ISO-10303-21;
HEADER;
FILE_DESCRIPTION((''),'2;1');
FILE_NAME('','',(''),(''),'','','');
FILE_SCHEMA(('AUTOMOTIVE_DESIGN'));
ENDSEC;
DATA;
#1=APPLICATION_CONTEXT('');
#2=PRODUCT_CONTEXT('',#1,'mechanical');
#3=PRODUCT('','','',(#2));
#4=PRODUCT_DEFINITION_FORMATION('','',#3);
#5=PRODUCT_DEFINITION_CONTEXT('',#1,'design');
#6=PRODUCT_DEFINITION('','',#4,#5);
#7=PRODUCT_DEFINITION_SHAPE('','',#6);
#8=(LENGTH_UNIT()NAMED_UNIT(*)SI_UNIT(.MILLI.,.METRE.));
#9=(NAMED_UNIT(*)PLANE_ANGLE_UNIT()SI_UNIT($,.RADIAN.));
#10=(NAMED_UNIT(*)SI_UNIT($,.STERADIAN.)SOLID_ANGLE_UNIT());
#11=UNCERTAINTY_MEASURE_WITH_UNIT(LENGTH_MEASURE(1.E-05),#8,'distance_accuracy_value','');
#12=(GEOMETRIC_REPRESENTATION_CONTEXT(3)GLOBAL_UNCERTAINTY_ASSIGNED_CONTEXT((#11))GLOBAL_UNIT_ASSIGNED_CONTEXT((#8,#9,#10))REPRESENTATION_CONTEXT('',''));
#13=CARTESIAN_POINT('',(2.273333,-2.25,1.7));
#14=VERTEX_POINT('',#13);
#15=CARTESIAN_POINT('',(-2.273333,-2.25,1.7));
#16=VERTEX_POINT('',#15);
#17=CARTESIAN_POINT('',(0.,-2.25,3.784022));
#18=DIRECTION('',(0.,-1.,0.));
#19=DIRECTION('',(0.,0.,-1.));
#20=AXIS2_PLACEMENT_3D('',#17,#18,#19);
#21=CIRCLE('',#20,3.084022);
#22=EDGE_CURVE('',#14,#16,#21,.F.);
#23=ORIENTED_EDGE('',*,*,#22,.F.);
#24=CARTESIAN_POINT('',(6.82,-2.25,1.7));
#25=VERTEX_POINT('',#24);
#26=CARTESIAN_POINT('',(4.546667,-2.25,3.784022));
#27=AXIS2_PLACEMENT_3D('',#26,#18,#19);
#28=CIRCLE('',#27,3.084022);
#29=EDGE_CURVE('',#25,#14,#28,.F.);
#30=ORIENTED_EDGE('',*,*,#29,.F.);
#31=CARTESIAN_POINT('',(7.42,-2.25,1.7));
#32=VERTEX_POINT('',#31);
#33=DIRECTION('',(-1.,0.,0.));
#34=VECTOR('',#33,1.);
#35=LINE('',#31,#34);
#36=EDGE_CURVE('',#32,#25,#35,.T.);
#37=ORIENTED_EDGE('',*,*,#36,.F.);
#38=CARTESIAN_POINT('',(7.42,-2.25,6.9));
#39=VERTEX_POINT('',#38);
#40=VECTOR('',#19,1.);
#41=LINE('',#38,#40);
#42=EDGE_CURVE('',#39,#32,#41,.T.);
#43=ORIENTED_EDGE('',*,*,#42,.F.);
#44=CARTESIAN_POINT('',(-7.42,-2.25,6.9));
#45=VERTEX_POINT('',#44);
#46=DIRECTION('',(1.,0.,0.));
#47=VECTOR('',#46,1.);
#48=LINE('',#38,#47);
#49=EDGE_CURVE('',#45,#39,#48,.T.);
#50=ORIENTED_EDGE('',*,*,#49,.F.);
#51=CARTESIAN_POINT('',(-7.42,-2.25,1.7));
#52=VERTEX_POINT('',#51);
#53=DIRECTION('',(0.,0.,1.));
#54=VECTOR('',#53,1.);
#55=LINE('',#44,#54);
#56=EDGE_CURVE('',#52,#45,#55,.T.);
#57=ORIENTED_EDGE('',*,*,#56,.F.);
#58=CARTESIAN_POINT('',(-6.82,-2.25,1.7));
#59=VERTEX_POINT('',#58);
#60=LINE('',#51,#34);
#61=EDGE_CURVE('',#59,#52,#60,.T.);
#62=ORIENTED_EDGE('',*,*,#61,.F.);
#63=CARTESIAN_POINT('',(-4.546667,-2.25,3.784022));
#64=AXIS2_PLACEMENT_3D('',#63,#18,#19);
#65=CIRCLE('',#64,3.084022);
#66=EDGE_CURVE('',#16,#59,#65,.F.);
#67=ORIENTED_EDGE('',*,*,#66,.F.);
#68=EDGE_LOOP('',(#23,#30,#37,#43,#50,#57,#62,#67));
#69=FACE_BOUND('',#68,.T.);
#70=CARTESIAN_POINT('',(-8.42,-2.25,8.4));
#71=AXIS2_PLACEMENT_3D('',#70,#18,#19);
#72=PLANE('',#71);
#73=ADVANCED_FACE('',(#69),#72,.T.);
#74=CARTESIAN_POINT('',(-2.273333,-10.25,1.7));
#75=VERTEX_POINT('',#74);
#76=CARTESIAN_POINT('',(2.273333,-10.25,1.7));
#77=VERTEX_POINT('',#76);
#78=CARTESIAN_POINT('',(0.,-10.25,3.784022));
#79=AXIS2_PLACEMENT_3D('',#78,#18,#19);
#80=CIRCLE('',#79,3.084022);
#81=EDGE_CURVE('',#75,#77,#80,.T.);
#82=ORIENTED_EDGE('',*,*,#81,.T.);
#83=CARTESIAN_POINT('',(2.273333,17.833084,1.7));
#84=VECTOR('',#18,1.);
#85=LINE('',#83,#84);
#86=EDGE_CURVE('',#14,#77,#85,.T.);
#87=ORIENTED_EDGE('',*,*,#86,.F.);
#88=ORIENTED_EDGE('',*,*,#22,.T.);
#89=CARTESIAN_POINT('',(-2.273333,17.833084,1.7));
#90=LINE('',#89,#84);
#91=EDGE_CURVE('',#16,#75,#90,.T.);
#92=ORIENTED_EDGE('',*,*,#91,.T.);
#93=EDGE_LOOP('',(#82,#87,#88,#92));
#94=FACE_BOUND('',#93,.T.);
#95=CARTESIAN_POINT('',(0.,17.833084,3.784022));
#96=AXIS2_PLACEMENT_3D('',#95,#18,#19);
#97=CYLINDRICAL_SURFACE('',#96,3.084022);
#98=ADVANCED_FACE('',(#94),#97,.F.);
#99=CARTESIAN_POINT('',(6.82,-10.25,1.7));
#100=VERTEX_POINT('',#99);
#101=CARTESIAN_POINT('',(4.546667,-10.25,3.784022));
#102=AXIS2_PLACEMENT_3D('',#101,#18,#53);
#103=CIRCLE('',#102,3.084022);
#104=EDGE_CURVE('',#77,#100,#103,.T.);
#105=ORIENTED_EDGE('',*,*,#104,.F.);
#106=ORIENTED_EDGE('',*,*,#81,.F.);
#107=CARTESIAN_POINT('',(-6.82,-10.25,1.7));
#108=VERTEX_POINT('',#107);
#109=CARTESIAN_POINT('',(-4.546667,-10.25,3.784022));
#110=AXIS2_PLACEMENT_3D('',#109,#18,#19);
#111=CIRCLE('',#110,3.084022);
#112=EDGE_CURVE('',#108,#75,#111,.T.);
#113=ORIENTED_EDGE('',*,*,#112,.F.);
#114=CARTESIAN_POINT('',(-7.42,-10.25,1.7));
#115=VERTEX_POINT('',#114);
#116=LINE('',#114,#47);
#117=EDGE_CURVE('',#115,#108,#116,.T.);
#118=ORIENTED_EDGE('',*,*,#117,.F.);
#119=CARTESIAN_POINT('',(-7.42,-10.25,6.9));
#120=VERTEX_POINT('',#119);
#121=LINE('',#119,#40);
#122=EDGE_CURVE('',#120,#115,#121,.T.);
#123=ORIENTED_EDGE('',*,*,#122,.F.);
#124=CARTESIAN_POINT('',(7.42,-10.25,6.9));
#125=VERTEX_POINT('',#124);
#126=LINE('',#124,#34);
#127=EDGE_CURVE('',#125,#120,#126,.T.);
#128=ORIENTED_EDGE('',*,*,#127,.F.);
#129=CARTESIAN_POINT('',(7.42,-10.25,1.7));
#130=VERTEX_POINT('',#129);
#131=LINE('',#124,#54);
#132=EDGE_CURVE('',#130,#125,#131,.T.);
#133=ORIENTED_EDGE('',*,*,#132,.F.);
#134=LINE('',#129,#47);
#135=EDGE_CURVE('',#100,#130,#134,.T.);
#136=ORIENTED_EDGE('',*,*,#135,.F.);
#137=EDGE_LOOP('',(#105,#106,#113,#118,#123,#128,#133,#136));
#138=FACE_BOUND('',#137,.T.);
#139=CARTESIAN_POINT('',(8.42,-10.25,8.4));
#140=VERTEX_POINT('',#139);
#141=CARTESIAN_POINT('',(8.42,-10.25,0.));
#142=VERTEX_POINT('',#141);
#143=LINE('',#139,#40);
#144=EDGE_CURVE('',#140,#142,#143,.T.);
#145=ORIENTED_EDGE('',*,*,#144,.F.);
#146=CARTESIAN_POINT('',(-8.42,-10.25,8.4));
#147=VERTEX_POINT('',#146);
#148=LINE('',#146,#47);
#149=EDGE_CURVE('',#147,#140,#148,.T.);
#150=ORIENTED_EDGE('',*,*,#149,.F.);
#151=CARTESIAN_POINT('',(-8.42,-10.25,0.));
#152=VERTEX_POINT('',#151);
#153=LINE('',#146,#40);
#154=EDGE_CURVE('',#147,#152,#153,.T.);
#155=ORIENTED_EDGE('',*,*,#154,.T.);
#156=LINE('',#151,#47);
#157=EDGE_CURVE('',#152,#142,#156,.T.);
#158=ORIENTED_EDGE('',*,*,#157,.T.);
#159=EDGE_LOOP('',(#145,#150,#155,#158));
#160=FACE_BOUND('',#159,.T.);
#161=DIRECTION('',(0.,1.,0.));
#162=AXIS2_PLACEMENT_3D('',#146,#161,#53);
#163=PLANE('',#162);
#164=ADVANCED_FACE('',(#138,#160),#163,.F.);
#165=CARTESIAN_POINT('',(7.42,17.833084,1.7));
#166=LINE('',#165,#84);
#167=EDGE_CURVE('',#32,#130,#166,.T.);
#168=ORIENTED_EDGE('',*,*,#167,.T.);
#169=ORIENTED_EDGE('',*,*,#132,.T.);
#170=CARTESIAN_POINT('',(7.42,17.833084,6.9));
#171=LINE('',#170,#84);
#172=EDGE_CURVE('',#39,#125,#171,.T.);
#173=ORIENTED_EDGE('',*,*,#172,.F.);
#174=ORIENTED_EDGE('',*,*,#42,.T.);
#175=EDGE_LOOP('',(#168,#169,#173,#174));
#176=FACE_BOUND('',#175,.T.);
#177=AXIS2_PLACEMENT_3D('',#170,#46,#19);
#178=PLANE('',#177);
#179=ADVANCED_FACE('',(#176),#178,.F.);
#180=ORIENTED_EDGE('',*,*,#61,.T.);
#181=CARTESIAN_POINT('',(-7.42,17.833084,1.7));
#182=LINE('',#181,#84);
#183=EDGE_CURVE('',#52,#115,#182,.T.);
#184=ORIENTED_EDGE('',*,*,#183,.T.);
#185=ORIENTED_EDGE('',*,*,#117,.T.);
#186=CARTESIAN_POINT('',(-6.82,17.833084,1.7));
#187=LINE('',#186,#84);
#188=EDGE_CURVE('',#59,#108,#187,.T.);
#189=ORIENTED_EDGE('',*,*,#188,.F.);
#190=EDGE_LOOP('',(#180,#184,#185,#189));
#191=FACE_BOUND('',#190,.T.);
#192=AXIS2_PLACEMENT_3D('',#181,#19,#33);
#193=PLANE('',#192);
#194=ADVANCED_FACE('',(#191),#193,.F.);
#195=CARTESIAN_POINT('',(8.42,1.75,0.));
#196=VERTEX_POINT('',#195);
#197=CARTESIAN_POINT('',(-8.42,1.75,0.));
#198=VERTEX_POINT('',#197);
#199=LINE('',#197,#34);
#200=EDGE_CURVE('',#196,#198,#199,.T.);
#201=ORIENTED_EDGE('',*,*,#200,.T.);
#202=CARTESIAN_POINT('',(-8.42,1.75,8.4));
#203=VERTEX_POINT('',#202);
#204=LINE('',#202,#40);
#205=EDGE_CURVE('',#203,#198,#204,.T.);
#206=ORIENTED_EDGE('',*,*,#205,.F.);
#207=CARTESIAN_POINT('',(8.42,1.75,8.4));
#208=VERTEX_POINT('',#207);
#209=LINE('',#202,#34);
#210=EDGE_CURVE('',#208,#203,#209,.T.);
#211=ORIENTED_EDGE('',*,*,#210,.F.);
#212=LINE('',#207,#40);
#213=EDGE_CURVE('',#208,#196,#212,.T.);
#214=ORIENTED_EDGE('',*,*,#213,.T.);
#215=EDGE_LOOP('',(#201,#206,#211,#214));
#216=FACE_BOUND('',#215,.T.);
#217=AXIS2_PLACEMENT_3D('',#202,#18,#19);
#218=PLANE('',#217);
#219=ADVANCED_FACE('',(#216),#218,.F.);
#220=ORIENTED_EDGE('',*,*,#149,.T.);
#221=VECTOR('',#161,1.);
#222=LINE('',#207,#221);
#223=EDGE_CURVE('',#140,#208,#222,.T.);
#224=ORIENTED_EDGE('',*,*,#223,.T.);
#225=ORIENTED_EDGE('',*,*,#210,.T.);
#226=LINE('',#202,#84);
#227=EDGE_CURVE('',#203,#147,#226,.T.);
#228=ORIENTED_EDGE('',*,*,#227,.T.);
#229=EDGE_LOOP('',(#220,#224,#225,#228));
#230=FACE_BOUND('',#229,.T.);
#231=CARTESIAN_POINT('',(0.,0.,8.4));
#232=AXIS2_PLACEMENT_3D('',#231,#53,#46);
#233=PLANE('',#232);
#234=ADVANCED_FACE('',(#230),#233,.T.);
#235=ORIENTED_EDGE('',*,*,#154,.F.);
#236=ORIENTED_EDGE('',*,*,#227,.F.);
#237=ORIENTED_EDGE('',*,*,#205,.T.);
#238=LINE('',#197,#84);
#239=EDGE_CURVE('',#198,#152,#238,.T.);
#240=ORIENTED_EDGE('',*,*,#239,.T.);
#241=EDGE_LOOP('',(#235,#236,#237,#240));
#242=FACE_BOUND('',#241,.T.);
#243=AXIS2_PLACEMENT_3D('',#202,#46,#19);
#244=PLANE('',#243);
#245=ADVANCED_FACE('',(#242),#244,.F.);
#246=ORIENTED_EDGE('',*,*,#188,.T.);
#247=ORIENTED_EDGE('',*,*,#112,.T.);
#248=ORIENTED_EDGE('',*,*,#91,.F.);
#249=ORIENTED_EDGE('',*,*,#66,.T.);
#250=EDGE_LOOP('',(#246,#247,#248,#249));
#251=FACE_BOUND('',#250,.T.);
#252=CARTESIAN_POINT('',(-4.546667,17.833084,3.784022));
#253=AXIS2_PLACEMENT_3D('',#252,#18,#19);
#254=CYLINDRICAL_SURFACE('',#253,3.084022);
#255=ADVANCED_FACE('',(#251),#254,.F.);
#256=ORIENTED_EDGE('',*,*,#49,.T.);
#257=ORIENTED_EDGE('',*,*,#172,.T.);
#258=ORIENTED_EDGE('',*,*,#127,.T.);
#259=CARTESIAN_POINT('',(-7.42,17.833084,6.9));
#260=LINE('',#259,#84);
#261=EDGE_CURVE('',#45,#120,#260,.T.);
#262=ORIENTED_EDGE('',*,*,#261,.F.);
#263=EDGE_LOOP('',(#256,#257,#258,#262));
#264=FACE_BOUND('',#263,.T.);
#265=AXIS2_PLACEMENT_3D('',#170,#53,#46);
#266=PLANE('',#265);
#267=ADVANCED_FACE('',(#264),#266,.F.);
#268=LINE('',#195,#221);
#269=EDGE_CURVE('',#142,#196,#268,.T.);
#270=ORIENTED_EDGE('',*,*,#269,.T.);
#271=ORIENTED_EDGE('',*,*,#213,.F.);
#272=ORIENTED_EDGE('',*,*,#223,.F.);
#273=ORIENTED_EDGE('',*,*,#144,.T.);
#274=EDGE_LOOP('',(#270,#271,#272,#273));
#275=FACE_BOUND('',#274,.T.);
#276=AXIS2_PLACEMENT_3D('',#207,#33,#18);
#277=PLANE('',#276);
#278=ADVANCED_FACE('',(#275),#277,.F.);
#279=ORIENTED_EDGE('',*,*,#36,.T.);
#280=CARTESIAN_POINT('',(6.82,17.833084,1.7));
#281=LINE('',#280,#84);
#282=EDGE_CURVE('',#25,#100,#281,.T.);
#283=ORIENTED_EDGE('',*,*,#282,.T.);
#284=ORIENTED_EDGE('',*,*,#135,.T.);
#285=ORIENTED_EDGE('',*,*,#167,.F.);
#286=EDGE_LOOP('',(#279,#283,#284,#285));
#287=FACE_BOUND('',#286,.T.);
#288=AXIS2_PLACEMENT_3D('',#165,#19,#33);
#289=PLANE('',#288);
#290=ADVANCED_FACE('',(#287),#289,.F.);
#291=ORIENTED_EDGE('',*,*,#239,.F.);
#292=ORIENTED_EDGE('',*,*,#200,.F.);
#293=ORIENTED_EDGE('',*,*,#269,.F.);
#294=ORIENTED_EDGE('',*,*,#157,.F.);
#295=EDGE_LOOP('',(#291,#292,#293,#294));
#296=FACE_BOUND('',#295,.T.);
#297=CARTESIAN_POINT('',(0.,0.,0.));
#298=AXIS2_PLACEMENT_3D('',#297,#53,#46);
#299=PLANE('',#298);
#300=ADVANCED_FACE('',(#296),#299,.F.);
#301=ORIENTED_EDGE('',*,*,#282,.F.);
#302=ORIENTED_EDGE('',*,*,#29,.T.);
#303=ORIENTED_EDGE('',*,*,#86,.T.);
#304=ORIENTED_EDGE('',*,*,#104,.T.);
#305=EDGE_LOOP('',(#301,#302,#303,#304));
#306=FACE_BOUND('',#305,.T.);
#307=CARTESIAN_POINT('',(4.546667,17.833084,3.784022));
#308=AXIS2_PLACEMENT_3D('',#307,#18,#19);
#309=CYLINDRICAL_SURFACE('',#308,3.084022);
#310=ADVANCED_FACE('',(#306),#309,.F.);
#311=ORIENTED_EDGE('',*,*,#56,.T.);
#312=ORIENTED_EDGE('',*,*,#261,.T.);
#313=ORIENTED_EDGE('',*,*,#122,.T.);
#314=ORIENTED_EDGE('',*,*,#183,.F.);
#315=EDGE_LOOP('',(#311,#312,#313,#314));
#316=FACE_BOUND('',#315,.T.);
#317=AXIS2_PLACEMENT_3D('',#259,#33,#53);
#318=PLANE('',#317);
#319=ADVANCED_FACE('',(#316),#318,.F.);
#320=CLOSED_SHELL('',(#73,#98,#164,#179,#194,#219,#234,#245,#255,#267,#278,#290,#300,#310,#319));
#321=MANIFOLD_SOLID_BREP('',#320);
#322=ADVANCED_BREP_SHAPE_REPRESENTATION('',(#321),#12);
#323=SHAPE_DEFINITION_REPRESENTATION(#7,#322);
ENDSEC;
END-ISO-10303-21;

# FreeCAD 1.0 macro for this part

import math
import FreeCAD as App
import Part
import Sketcher

V = App.Vector


def add_polygon(sketch, points):
    """Adds a closed chain of lines whose ends are joined by coincident constraints."""
    first, n = sketch.GeometryCount, len(points)
    for a, b in zip(points, points[1:] + points[:1]):
        sketch.addGeometry(Part.LineSegment(App.Vector(*a, 0), App.Vector(*b, 0)), False)
    for i in range(n):
        sketch.addConstraint(Sketcher.Constraint("Coincident", first + i, 2, first + (i + 1) % n, 1))

doc = App.newDocument("Part")
body = doc.addObject("PartDesign::Body", "Body")

# Sketch on XY plane
sketch1 = body.newObject("Sketcher::SketchObject", "Sketch")
sketch1.AttachmentSupport = (doc.getObject("XY_Plane"), [""])
sketch1.MapMode = "FlatFace"
add_polygon(sketch1, [(-8.42, 1.75), (-8.42, -10.25), (8.42, -10.25), (8.42, 1.75)])  # lines 0-3
sketch1.addConstraint([
    Sketcher.Constraint("Vertical", 0),
    Sketcher.Constraint("Horizontal", 1),
    Sketcher.Constraint("Vertical", 2),
    Sketcher.Constraint("Horizontal", 3),
    Sketcher.Constraint("DistanceY", 0, 2, 0, 1, 12.0),
    Sketcher.Constraint("DistanceX", 1, 1, 1, 2, 16.84),
    Sketcher.Constraint("DistanceX", 0, 2, -1, 1, 8.42),
    Sketcher.Constraint("DistanceY", 0, 2, -1, 1, 10.25),
])
pad1 = body.newObject("PartDesign::Pad", "Pad")
pad1.Profile = sketch1
pad1.Length = 8.4

# Sketch on XZ plane
sketch2 = body.newObject("Sketcher::SketchObject", "Sketch001")
sketch2.AttachmentSupport = (doc.getObject("XZ_Plane"), [""])
sketch2.MapMode = "FlatFace"
sketch2.AttachmentOffset = App.Placement(V(0, 0, 10.25), App.Rotation())
sketch2.addGeometry([
    Part.LineSegment(V(7.42, 6.9, 0), V(-7.42, 6.9, 0)),  # 0
    Part.LineSegment(V(-7.42, 6.9, 0), V(-7.42, 1.7, 0)),  # 1
    Part.LineSegment(V(-7.42, 1.7, 0), V(-6.82, 1.7, 0)),  # 2
    Part.ArcOfCircle(Part.Circle(V(-4.546667, 3.784022, 0), V(0, 0, 1), 3.084022), math.radians(-137.487727), math.radians(-42.512273)),  # 3
    Part.ArcOfCircle(Part.Circle(V(0, 3.784022, 0), V(0, 0, 1), 3.084022), math.radians(-137.487727), math.radians(-42.512273)),  # 4
    Part.ArcOfCircle(Part.Circle(V(4.546667, 3.784022, 0), V(0, 0, 1), 3.084022), math.radians(-137.487727), math.radians(-42.512273)),  # 5
    Part.LineSegment(V(6.82, 1.7, 0), V(7.42, 1.7, 0)),  # 6
    Part.LineSegment(V(7.42, 1.7, 0), V(7.42, 6.9, 0)),  # 7
], False)
sketch2.addConstraint([
    Sketcher.Constraint("Coincident", 0, 2, 1, 1),
    Sketcher.Constraint("Coincident", 1, 2, 2, 1),
    Sketcher.Constraint("Coincident", 2, 2, 3, 1),
    Sketcher.Constraint("Coincident", 3, 2, 4, 1),
    Sketcher.Constraint("Coincident", 4, 2, 5, 1),
    Sketcher.Constraint("Coincident", 5, 2, 6, 1),
    Sketcher.Constraint("Coincident", 6, 2, 7, 1),
    Sketcher.Constraint("Coincident", 7, 2, 0, 1),
    Sketcher.Constraint("Horizontal", 0),
    Sketcher.Constraint("Vertical", 1),
    Sketcher.Constraint("Horizontal", 2),
    Sketcher.Constraint("Horizontal", 6),
    Sketcher.Constraint("Vertical", 7),
    Sketcher.Constraint("Equal", 3, 4),
    Sketcher.Constraint("Equal", 4, 5),
    Sketcher.Constraint("Symmetric", 3, 3, 5, 3, -2),
    Sketcher.Constraint("Symmetric", 1, 2, 6, 2, -2),
    Sketcher.Constraint("PointOnObject", 4, 3, -2),
    Sketcher.Constraint("Horizontal", 3, 3, 4, 3),
    Sketcher.Constraint("Horizontal", 2, 2, 3, 2),
    Sketcher.Constraint("DistanceX", 2, 1, 2, 2, 0.6),
    Sketcher.Constraint("DistanceY", 1, 2, 1, 1, 5.2),
    Sketcher.Constraint("DistanceX", 0, 2, 0, 1, 14.84),
    Sketcher.Constraint("DistanceY", -1, 1, 0, 2, 6.9),
    Sketcher.Constraint("Radius", 3, 3.084022),
])
pocket1 = body.newObject("PartDesign::Pocket", "Pocket")
pocket1.Profile = sketch2
pocket1.Length = 8

doc.recompute()
